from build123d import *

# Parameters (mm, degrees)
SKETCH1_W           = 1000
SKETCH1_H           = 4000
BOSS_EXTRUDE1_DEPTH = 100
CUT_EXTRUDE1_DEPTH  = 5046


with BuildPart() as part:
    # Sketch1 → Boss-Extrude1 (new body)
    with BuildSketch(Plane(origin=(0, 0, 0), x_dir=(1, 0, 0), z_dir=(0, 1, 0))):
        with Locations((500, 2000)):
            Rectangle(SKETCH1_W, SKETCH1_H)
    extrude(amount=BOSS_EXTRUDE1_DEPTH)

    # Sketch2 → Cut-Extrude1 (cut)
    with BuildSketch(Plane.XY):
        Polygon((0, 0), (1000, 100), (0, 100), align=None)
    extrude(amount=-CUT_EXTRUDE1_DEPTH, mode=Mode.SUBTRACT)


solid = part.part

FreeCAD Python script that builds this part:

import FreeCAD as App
import Part
import Sketcher

V = App.Vector


def add_polygon(sketch, points):
    """Adds a closed chain of lines whose ends are joined by coincident constraints."""
    first, n = sketch.GeometryCount, len(points)
    for a, b in zip(points, points[1:] + points[:1]):
        sketch.addGeometry(Part.LineSegment(App.Vector(*a, 0), App.Vector(*b, 0)), False)
    for i in range(n):
        sketch.addConstraint(Sketcher.Constraint("Coincident", first + i, 2, first + (i + 1) % n, 1))

doc = App.newDocument("Part")
body = doc.addObject("PartDesign::Body", "Body")

# Sketch on XZ plane
sketch1 = body.newObject("Sketcher::SketchObject", "Sketch")
sketch1.AttachmentSupport = (doc.getObject("XZ_Plane"), [""])
sketch1.MapMode = "FlatFace"
add_polygon(sketch1, [(0, -4000), (0, 0), (1000, 0), (1000, -4000)])  # lines 0-3
sketch1.addConstraint(Sketcher.Constraint("Vertical", 0))
sketch1.addConstraint(Sketcher.Constraint("Horizontal", 1))
sketch1.addConstraint(Sketcher.Constraint("Vertical", 2))
sketch1.addConstraint(Sketcher.Constraint("Horizontal", 3))
sketch1.addConstraint(Sketcher.Constraint("Coincident", 0, 2, -1, 1))
sketch1.addConstraint(Sketcher.Constraint("DistanceX", 1, 1, 1, 2, 1000.0))
sketch1.addConstraint(Sketcher.Constraint("DistanceY", 0, 1, 0, 2, 4000.0))
pad1 = body.newObject("PartDesign::Pad", "Pad")
pad1.Profile = sketch1
pad1.Length = 100
pad1.Reversed = True

# Sketch on XY plane
sketch2 = body.newObject("Sketcher::SketchObject", "Sketch001")
sketch2.AttachmentSupport = (doc.getObject("XY_Plane"), [""])
sketch2.MapMode = "FlatFace"
add_polygon(sketch2, [(0, 0), (1000, 100), (0, 100)])  # lines 0-2
sketch2.addConstraint(Sketcher.Constraint("Horizontal", 1))
sketch2.addConstraint(Sketcher.Constraint("Vertical", 2))
sketch2.addConstraint(Sketcher.Constraint("Coincident", 2, 2, -1, 1))
sketch2.addConstraint(Sketcher.Constraint("DistanceX", 1, 2, 1, 1, 1000.0))
sketch2.addConstraint(Sketcher.Constraint("DistanceY", 2, 2, 2, 1, 100.0))
pocket1 = body.newObject("PartDesign::Pocket", "Pocket")
pocket1.Profile = sketch2
pocket1.Length = 5046

doc.recompute()
